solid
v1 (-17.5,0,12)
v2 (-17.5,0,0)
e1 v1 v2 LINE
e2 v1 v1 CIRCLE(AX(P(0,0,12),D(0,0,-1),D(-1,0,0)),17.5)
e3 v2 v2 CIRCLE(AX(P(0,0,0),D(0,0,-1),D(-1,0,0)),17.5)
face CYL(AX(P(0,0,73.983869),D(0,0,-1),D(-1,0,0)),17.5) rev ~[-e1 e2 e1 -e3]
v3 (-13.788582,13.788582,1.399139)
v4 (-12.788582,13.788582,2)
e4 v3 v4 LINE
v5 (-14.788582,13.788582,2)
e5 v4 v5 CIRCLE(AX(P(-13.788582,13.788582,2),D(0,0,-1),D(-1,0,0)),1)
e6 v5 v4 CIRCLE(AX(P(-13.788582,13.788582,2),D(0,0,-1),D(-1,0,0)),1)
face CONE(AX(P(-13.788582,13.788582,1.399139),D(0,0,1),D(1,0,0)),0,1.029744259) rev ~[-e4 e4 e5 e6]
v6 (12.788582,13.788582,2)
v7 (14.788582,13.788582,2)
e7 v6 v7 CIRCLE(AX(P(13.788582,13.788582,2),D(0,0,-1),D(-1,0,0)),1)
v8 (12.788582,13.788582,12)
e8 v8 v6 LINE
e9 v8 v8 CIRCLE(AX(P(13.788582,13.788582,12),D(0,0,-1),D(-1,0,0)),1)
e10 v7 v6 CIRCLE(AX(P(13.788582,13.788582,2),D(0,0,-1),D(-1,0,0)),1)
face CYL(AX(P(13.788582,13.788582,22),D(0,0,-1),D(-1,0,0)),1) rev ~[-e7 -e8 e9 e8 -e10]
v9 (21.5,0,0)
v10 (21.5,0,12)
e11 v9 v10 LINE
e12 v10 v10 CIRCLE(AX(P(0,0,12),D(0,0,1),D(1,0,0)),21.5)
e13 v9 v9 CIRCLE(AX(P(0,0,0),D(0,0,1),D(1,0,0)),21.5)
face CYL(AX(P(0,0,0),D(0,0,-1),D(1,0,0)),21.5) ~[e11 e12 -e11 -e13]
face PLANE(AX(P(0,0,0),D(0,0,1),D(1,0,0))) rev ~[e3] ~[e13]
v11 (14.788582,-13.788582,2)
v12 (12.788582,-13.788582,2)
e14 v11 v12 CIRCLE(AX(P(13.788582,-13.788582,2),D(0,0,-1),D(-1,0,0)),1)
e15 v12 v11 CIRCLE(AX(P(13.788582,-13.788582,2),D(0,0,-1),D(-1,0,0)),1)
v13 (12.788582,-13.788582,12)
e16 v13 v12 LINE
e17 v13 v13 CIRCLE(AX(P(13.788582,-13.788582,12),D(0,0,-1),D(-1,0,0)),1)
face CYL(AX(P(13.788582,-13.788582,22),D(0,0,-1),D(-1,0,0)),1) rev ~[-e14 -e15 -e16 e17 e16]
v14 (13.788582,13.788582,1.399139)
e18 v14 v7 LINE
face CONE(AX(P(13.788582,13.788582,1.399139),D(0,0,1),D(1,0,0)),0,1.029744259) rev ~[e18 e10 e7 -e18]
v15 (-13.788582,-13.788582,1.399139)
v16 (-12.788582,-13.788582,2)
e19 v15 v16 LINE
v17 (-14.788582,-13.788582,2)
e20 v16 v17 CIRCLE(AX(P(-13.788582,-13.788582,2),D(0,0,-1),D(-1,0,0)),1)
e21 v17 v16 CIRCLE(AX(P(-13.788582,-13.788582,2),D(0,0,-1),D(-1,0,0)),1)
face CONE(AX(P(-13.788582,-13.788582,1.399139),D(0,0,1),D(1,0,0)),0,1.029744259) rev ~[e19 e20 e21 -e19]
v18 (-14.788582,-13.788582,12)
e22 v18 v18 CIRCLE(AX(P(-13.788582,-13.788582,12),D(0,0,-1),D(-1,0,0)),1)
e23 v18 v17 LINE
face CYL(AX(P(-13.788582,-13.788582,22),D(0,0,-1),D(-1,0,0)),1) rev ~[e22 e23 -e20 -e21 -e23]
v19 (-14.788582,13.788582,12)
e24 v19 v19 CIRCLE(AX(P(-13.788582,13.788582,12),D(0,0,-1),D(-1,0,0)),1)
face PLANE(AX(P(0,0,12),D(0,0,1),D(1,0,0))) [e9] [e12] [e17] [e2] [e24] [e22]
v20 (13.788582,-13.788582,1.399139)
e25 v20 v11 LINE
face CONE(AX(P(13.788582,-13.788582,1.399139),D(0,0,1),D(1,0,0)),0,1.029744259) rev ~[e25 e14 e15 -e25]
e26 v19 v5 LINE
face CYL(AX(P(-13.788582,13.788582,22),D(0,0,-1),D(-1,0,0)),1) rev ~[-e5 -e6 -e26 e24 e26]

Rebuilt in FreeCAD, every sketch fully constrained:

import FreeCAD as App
import Part
import Sketcher
from FreeCAD import Vector
Q = App.Units.Quantity

doc = App.newDocument("Part")
params = doc.addObject("Spreadsheet::Sheet", "Params")
for row, (alias, value) in enumerate([
    ("sketch1_diameter", "43 mm"),
    ("pad1_length", "12 mm"),
    ("sketch2_diameter", "35 mm"),
    ("hole_diameter", "35 mm"),
    ("sketch3_diameter", "2 mm"),
    ("hole2_diameter", "2 mm"),
    ("hole2_depth", "10 mm"),
], start=1):
    params.set(f"A{row}", alias)
    params.set(f"B{row}", "=" + value)
    params.setAlias(f"B{row}", alias)

body = doc.addObject("PartDesign::Body", "Body")

sketch1 = body.newObject("Sketcher::SketchObject", "Sketch")
sketch1.AttachmentSupport = (doc.getObject("XY_Plane"), [""])
sketch1.MapMode = "FlatFace"
sketch1.addGeometry(Part.Circle(Vector(0, 0, 0), Vector(0, 0, 1), 22), False)
sketch1.addConstraint(Sketcher.Constraint("Coincident", 0, 3, -1, 1))
sketch1.addConstraint(Sketcher.Constraint("Diameter", 0, Q("43 mm")))
sketch1.setExpression("Constraints[1]", "Params.sketch1_diameter")
pad1 = body.newObject("PartDesign::Pad", "Pad")
pad1.Profile = sketch1
pad1.setExpression("Length", "Params.pad1_length")

sketch2 = body.newObject("Sketcher::SketchObject", "Sketch001")
sketch2.AttachmentSupport = (doc.getObject("XY_Plane"), [""])
sketch2.MapMode = "FlatFace"
sketch2.AttachmentOffset = App.Placement(Vector(0, 0, 12), App.Rotation())
sketch2.addGeometry(Part.Circle(Vector(0, 0, 0), Vector(0, 0, 1), 18), False)
sketch2.addConstraint(Sketcher.Constraint("Coincident", 0, 3, -1, 1))
sketch2.addConstraint(Sketcher.Constraint("Diameter", 0, Q("35 mm")))
sketch2.setExpression("Constraints[1]", "Params.sketch2_diameter")
doc.recompute()
hole = body.newObject("PartDesign::Hole", "Hole")
hole.Profile = sketch2
hole.ThreadType = "None"
hole.setExpression("Diameter", "Params.hole_diameter")
hole.DepthType = "ThroughAll"

sketch3 = body.newObject("Sketcher::SketchObject", "Sketch002")
sketch3.AttachmentSupport = (doc.getObject("XY_Plane"), [""])
sketch3.MapMode = "FlatFace"
sketch3.AttachmentOffset = App.Placement(Vector(0, 0, 12), App.Rotation())
sketch3.addGeometry(Part.Circle(Vector(-13.8, 13.8, 0), Vector(0, 0, 1), 1), False)
sketch3.addGeometry(Part.Circle(Vector(13.8, 13.8, 0), Vector(0, 0, 1), 1), False)
sketch3.addGeometry(Part.Circle(Vector(13.8, -13.8, 0), Vector(0, 0, 1), 1), False)
sketch3.addGeometry(Part.Circle(Vector(-13.8, -13.8, 0), Vector(0, 0, 1), 1), False)
sketch3.addConstraint(Sketcher.Constraint("Equal", 0, 1))
sketch3.addConstraint(Sketcher.Constraint("Equal", 1, 2))
sketch3.addConstraint(Sketcher.Constraint("Equal", 2, 3))
sketch3.addConstraint(Sketcher.Constraint("Symmetric", 0, 3, 2, 3, -1, 1))
sketch3.addConstraint(Sketcher.Constraint("Symmetric", 1, 3, 3, 3, -1, 1))
sketch3.addConstraint(Sketcher.Constraint("Symmetric", 0, 3, 1, 3, -2))
sketch3.addConstraint(Sketcher.Constraint("Diameter", 0, Q("2 mm")))
sketch3.addConstraint(Sketcher.Constraint("DistanceX", 0, 3, -1, 1, Q("13.788582 mm")))
sketch3.addConstraint(Sketcher.Constraint("DistanceY", -1, 1, 0, 3, Q("13.788582 mm")))
sketch3.setExpression("Constraints[6]", "Params.sketch3_diameter")
doc.recompute()
hole2 = body.newObject("PartDesign::Hole", "Hole001")
hole2.Profile = sketch3
hole2.ThreadType = "None"
hole2.setExpression("Diameter", "Params.hole2_diameter")
hole2.DepthType = "Dimension"
hole2.setExpression("Depth", "Params.hole2_depth")
hole2.DrillPoint = "Angled"
hole2.DrillPointAngle = 118

doc.recompute()
